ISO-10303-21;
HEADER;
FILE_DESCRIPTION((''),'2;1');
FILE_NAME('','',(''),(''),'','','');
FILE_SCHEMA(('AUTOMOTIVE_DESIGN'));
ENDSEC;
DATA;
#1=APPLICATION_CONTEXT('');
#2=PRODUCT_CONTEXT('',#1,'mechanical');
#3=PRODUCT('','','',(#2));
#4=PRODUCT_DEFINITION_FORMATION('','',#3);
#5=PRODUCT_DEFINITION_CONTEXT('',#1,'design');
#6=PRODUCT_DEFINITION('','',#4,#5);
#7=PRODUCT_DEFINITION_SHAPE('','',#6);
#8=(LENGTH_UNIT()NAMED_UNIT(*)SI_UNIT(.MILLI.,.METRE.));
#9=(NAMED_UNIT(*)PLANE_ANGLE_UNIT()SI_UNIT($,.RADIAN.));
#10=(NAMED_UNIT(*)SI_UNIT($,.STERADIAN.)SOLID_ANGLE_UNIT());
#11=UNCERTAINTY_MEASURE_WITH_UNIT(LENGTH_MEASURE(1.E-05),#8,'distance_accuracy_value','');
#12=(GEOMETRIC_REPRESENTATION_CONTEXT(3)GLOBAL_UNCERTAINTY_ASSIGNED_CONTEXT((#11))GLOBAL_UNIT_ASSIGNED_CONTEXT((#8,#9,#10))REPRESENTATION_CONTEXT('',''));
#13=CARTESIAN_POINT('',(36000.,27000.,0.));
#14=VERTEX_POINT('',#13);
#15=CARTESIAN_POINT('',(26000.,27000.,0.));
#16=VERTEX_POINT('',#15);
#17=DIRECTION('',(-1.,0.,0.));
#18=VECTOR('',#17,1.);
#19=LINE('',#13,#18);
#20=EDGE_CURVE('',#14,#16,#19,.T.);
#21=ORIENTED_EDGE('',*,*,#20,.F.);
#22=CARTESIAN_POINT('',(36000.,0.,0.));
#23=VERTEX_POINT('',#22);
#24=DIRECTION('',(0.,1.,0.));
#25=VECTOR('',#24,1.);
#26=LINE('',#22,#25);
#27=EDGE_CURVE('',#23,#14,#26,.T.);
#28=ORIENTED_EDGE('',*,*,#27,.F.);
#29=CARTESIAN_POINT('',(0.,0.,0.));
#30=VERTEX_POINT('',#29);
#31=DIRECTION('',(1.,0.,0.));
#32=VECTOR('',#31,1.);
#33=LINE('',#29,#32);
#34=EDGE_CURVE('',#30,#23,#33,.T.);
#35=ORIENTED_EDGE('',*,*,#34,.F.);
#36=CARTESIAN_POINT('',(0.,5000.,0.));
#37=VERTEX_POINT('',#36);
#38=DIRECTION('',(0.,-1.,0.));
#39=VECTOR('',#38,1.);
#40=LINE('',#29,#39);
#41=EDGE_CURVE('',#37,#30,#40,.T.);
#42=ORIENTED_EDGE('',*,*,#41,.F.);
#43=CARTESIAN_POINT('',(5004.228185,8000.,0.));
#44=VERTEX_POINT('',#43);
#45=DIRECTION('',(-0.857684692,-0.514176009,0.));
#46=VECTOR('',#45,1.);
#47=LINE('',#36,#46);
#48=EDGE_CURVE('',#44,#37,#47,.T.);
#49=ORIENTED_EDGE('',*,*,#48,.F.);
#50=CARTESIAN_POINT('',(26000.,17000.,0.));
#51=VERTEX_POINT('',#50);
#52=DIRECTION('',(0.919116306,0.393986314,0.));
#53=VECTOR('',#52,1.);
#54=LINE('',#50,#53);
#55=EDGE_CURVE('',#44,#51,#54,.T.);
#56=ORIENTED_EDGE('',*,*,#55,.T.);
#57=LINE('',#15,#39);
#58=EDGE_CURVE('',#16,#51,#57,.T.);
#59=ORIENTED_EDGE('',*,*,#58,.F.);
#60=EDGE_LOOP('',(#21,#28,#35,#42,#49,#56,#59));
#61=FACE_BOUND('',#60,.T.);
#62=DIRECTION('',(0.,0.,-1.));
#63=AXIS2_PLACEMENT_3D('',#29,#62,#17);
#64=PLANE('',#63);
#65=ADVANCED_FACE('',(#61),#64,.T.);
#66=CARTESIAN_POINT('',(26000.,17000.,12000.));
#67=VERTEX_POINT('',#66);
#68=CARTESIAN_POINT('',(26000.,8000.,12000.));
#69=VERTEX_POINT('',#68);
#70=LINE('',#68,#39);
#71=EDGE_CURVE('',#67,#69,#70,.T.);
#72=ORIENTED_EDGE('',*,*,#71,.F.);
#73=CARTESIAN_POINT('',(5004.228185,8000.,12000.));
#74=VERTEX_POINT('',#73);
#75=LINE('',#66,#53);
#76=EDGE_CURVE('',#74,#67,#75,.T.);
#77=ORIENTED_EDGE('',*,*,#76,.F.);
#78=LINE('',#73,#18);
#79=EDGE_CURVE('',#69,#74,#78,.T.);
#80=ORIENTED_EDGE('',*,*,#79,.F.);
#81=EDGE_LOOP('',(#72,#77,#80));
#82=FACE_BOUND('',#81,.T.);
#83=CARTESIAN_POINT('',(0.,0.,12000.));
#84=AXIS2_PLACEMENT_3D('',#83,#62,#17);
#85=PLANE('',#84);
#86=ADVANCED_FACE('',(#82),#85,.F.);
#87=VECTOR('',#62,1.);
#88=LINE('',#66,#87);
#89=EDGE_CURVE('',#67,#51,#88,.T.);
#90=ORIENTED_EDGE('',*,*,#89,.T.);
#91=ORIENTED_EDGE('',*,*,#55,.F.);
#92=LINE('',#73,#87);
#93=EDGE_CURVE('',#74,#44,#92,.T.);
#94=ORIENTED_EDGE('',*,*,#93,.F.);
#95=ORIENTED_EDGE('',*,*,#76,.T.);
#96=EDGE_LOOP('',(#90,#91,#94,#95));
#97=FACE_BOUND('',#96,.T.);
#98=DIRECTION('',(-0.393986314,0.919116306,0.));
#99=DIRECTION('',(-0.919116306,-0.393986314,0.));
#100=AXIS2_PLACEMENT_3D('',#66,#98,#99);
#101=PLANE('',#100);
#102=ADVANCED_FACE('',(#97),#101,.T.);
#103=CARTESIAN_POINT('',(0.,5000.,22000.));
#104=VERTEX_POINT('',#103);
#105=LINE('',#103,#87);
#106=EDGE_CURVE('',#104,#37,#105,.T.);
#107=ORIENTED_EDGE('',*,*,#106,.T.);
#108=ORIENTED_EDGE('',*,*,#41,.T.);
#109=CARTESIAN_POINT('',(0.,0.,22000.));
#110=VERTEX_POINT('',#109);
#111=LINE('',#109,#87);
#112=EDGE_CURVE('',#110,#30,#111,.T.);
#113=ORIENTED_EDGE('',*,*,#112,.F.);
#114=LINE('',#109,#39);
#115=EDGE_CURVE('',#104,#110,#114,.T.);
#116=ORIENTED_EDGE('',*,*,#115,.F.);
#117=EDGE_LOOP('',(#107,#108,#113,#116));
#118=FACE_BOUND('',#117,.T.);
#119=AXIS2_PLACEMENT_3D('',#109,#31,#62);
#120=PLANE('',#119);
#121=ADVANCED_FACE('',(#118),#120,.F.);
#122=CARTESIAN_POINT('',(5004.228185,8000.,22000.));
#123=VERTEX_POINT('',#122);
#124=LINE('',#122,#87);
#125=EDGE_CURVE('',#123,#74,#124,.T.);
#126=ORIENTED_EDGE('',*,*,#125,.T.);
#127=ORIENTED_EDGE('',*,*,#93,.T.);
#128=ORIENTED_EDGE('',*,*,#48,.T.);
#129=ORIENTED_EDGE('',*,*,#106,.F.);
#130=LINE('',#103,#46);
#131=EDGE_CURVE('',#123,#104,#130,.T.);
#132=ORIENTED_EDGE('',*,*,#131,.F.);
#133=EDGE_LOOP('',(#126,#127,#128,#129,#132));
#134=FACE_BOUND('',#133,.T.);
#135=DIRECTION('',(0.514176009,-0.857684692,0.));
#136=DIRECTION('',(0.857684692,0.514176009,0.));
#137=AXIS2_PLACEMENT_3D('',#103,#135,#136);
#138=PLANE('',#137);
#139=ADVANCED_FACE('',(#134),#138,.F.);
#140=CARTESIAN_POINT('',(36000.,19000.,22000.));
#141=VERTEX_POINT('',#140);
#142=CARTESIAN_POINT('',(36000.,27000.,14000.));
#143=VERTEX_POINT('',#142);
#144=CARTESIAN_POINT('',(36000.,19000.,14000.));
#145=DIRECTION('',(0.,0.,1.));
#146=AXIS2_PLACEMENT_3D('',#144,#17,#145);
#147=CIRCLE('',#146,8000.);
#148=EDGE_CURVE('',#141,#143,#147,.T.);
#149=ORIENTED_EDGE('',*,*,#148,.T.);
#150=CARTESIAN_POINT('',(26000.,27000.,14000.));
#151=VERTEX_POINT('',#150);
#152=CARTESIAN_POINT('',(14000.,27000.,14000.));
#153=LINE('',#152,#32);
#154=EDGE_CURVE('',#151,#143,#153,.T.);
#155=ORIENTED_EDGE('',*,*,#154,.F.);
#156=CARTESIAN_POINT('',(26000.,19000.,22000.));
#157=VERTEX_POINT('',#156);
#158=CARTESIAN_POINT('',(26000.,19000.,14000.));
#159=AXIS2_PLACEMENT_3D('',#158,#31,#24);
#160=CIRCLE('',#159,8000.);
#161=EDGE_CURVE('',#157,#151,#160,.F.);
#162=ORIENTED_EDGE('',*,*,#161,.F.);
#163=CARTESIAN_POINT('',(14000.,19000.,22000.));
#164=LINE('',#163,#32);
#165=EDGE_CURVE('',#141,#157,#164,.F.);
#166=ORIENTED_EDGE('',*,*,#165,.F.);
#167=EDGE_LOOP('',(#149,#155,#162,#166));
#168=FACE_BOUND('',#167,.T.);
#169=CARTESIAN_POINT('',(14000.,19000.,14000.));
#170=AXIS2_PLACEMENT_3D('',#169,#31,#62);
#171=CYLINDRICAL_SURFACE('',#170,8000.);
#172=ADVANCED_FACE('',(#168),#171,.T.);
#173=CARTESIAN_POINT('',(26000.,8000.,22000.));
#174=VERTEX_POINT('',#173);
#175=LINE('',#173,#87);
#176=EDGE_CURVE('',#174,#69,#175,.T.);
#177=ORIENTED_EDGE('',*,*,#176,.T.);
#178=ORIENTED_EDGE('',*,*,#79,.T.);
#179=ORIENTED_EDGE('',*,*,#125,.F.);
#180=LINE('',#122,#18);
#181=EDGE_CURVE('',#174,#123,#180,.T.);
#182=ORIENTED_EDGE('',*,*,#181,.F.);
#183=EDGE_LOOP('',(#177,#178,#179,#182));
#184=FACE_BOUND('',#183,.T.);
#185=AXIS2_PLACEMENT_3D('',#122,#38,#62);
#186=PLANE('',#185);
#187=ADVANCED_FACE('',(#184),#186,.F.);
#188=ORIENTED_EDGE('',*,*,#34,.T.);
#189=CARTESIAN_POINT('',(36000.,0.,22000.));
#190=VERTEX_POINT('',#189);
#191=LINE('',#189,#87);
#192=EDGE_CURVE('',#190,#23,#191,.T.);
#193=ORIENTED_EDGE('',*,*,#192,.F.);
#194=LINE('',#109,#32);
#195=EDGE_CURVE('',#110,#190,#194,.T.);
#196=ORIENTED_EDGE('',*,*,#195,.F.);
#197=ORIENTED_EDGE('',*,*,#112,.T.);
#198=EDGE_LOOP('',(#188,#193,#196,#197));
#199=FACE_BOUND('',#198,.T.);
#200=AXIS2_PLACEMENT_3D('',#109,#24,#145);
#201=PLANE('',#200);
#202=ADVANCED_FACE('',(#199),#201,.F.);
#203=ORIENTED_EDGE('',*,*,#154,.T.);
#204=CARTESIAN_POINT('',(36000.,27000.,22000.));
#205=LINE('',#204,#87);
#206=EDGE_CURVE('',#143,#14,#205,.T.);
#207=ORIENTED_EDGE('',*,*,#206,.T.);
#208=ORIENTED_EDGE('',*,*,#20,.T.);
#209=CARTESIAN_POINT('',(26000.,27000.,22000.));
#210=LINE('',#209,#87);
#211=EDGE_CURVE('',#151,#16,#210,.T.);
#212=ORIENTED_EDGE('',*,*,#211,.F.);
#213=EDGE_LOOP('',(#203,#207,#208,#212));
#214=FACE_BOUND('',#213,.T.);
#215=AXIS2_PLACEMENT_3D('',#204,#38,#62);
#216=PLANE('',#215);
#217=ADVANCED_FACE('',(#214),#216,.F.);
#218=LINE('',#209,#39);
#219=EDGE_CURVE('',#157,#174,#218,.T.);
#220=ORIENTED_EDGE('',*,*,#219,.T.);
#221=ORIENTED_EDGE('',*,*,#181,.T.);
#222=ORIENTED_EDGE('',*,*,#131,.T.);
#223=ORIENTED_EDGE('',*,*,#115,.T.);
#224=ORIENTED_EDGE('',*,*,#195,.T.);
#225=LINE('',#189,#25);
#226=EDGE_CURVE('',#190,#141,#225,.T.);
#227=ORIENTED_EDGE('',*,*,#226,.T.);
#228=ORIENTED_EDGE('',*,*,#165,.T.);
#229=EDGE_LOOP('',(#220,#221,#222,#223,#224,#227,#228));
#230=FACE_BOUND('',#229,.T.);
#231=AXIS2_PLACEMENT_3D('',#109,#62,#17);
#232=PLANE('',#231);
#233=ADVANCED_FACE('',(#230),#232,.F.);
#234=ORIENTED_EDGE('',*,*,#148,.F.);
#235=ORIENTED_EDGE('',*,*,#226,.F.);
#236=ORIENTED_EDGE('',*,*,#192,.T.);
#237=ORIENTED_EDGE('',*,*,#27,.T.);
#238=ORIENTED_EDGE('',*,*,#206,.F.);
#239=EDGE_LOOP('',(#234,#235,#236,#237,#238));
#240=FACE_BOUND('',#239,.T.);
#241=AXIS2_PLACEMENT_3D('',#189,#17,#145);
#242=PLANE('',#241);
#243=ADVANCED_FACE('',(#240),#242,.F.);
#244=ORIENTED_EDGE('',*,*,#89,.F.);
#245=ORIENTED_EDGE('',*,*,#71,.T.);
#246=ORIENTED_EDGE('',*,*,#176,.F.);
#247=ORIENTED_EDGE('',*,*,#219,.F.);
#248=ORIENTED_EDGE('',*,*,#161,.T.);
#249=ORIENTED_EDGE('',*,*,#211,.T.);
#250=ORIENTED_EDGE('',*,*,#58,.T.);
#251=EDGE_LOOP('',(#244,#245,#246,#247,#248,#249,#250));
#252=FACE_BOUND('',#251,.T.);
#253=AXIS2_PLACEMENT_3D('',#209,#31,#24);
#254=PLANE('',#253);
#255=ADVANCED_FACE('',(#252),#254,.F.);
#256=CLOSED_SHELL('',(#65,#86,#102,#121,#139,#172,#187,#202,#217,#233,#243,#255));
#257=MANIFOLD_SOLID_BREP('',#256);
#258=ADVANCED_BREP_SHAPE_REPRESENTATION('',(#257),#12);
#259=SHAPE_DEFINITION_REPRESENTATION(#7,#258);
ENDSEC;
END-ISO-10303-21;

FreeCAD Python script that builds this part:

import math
import FreeCAD as App
import Part
import Sketcher

doc = App.newDocument("Part")
body = doc.addObject("PartDesign::Body", "Body")

# Sketch on XY plane
sketch1 = body.newObject("Sketcher::SketchObject", "Sketch")
sketch1.AttachmentSupport = (doc.getObject("XY_Plane"), [""])
sketch1.MapMode = "FlatFace"
sketch1.addGeometry([
    Part.LineSegment(App.Vector(0, 0, 0), App.Vector(36000, 0, 0)),  # 0
    Part.LineSegment(App.Vector(36000, 0, 0), App.Vector(36000, 27000, 0)),  # 1
    Part.LineSegment(App.Vector(36000, 27000, 0), App.Vector(26000, 27000, 0)),  # 2
    Part.LineSegment(App.Vector(26000, 27000, 0), App.Vector(26000, 8000, 0)),  # 3
    Part.LineSegment(App.Vector(26000, 8000, 0), App.Vector(5004, 8000, 0)),  # 4
    Part.LineSegment(App.Vector(5004, 8000, 0), App.Vector(0, 5000, 0)),  # 5
    Part.LineSegment(App.Vector(0, 5000, 0), App.Vector(0, 0, 0)),  # 6
], False)
sketch1.addConstraint([
    Sketcher.Constraint("Coincident", 0, 2, 1, 1),
    Sketcher.Constraint("Coincident", 1, 2, 2, 1),
    Sketcher.Constraint("Coincident", 2, 2, 3, 1),
    Sketcher.Constraint("Coincident", 3, 2, 4, 1),
    Sketcher.Constraint("Coincident", 4, 2, 5, 1),
    Sketcher.Constraint("Coincident", 5, 2, 6, 1),
    Sketcher.Constraint("Coincident", 6, 2, 0, 1),
    Sketcher.Constraint("Horizontal", 0),
    Sketcher.Constraint("Vertical", 1),
    Sketcher.Constraint("Horizontal", 2),
    Sketcher.Constraint("Vertical", 3),
    Sketcher.Constraint("Horizontal", 4),
    Sketcher.Constraint("Vertical", 6),
    Sketcher.Constraint("Coincident", 6, 2, -1, 1),
    Sketcher.Constraint("DistanceX", 0, 1, 0, 2, 36000.0),
    Sketcher.Constraint("DistanceX", 2, 2, 2, 1, 10000.0),
    Sketcher.Constraint("DistanceY", 1, 1, 1, 2, 27000.0),
    Sketcher.Constraint("DistanceY", 3, 2, 3, 1, 19000.0),
    Sketcher.Constraint("DistanceY", 6, 2, 6, 1, 5000.0),
    Sketcher.Constraint("Distance", 5, 5834.577939),
])
pad1 = body.newObject("PartDesign::Pad", "Pad")
pad1.Profile = sketch1
pad1.Length = 22000

# Sketch on YZ plane
sketch2 = body.newObject("Sketcher::SketchObject", "Sketch001")
sketch2.AttachmentSupport = (doc.getObject("YZ_Plane"), [""])
sketch2.MapMode = "FlatFace"
sketch2.AttachmentOffset = App.Placement(App.Vector(0, 0, 36000), App.Rotation())
sketch2.addGeometry([
    Part.LineSegment(App.Vector(27000, 22000, 0), App.Vector(19000, 22000, 0)),
    Part.ArcOfCircle(Part.Circle(App.Vector(19000, 14000, 0), App.Vector(0, 0, 1), 8000), math.radians(0), math.radians(90)),
    Part.LineSegment(App.Vector(27000, 14000, 0), App.Vector(27000, 22000, 0)),
], False)
sketch2.addConstraint([
    Sketcher.Constraint("Coincident", 0, 2, 1, 2),
    Sketcher.Constraint("Coincident", 1, 1, 2, 1),
    Sketcher.Constraint("Coincident", 2, 2, 0, 1),
    Sketcher.Constraint("Horizontal", 0),
    Sketcher.Constraint("Vertical", 2),
    Sketcher.Constraint("Vertical", 1, 3, 0, 2),
    Sketcher.Constraint("Equal", 0, 2),
    Sketcher.Constraint("Radius", 1, 8000.0),
    Sketcher.Constraint("DistanceX", -1, 1, 1, 3, 19000.0),
    Sketcher.Constraint("DistanceY", -1, 1, 1, 3, 14000.0),
])
pocket1 = body.newObject("PartDesign::Pocket", "Pocket")
pocket1.Profile = sketch2
pocket1.Length = 22000

# Sketch on XY plane
sketch3 = body.newObject("Sketcher::SketchObject", "Sketch002")
sketch3.AttachmentSupport = (doc.getObject("XY_Plane"), [""])
sketch3.MapMode = "FlatFace"
sketch3.addGeometry([
    Part.LineSegment(App.Vector(26000, 8000, 0), App.Vector(5004, 8000, 0)),
    Part.LineSegment(App.Vector(5004, 8000, 0), App.Vector(26000, 17000, 0)),
    Part.LineSegment(App.Vector(26000, 17000, 0), App.Vector(26000, 8000, 0)),
], False)
sketch3.addConstraint([
    Sketcher.Constraint("Coincident", 0, 2, 1, 1),
    Sketcher.Constraint("Coincident", 1, 2, 2, 1),
    Sketcher.Constraint("Coincident", 2, 2, 0, 1),
    Sketcher.Constraint("Horizontal", 0),
    Sketcher.Constraint("Vertical", 2),
    Sketcher.Constraint("DistanceY", 2, 2, 2, 1, 9000.0),
    Sketcher.Constraint("DistanceY", -1, 1, 0, 2, 8000.0),
    Sketcher.Constraint("DistanceX", -1, 1, 1, 2, 26000.0),
    Sketcher.Constraint("DistanceX", 0, 2, 0, 1, 20995.771815),
])
pad2 = body.newObject("PartDesign::Pad", "Pad001")
pad2.Profile = sketch3
pad2.Length = 12000

doc.recompute()
